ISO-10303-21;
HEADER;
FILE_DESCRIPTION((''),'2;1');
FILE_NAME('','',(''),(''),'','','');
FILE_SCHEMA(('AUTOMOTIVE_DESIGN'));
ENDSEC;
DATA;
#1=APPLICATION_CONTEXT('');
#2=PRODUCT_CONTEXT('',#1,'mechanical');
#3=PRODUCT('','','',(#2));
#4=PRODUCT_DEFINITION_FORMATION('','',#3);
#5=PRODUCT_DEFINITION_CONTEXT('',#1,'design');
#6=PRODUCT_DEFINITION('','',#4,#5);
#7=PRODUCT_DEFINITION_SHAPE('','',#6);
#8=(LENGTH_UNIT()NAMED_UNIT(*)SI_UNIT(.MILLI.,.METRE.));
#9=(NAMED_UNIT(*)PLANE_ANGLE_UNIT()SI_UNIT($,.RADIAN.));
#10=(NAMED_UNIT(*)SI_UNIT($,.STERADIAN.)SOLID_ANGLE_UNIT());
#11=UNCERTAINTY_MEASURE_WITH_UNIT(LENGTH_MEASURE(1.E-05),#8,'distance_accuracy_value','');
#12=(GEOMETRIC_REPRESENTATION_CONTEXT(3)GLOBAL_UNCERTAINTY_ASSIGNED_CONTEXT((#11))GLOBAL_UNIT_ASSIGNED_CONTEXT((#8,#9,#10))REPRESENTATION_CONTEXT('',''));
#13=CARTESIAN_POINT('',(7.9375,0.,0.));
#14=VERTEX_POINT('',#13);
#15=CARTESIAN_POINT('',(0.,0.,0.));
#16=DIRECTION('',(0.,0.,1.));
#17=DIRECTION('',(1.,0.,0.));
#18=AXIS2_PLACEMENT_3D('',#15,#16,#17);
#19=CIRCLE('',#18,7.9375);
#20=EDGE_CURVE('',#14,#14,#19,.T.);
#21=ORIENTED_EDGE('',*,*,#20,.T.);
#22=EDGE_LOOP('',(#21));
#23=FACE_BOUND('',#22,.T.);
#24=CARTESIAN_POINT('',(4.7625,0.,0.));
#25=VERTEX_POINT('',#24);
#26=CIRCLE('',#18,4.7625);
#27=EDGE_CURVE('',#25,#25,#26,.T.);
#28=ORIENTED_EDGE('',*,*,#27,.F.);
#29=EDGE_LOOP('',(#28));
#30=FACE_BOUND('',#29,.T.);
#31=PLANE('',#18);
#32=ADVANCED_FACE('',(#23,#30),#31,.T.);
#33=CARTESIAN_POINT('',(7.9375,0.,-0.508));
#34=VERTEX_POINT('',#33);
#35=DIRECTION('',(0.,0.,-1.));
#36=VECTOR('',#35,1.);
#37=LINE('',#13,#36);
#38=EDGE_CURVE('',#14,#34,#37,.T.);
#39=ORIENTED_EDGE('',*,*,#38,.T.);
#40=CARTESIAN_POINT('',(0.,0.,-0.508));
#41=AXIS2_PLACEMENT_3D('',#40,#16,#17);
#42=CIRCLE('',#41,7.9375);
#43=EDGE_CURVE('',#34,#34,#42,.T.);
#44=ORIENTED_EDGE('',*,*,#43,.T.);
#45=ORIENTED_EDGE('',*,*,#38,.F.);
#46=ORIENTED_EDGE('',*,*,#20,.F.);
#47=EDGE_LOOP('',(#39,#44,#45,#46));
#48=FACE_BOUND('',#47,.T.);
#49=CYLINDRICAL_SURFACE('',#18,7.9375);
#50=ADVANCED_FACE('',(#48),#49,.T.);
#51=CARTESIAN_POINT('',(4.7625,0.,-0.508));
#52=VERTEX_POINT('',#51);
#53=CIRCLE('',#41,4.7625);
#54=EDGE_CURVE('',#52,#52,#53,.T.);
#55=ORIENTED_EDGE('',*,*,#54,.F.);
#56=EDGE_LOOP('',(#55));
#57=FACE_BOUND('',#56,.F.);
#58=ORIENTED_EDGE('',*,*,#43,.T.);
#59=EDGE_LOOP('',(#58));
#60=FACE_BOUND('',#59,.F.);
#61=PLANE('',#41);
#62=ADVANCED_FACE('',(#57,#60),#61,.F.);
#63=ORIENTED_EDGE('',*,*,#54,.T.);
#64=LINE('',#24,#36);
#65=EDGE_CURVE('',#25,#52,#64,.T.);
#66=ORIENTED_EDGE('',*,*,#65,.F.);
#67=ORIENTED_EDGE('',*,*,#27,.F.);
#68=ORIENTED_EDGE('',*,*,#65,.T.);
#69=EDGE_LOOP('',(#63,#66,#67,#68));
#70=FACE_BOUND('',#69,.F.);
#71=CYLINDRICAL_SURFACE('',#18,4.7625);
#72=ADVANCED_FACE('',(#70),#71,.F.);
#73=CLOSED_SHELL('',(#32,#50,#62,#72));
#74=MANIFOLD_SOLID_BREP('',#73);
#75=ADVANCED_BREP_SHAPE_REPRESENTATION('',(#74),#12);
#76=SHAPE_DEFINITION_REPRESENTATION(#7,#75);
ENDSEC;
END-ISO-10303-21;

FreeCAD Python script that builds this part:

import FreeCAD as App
import Part
import Sketcher

V = App.Vector
Q = App.Units.Quantity

doc = App.newDocument("Part")
params = doc.addObject("Spreadsheet::Sheet", "Params")
for row, (alias, value) in enumerate([
    ("sketch1_diameter", "0.375 in"),
    ("sketch1_diameter2", "0.625 in"),
    ("pad1_length", "0.02 in"),
], start=1):
    params.set(f"A{row}", alias)
    params.set(f"B{row}", "=" + value)
    params.setAlias(f"B{row}", alias)

body = doc.addObject("PartDesign::Body", "Body")

# Sketch on XY plane
sketch1 = body.newObject("Sketcher::SketchObject", "Sketch")
sketch1.AttachmentSupport = (doc.getObject("XY_Plane"), [""])
sketch1.MapMode = "FlatFace"
sketch1.addGeometry([
    Part.Circle(V(0, 0, 0), V(0, 0, 1), 7.9375),
    Part.Circle(V(0, 0, 0), V(0, 0, 1), 4.7625),
], False)
sketch1.addConstraint([
    Sketcher.Constraint("Coincident", 0, 3, -1, 1),
    Sketcher.Constraint("Coincident", 1, 3, -1, 1),
    Sketcher.Constraint("Diameter", 1, Q("0.375 in")),
    Sketcher.Constraint("Diameter", 0, Q("0.625 in")),
])
sketch1.setExpression("Constraints[2]", "Params.sketch1_diameter")
sketch1.setExpression("Constraints[3]", "Params.sketch1_diameter2")
pad1 = body.newObject("PartDesign::Pad", "Pad")
pad1.Profile = sketch1
pad1.setExpression("Length", "Params.pad1_length")
pad1.Reversed = True

doc.recompute()
